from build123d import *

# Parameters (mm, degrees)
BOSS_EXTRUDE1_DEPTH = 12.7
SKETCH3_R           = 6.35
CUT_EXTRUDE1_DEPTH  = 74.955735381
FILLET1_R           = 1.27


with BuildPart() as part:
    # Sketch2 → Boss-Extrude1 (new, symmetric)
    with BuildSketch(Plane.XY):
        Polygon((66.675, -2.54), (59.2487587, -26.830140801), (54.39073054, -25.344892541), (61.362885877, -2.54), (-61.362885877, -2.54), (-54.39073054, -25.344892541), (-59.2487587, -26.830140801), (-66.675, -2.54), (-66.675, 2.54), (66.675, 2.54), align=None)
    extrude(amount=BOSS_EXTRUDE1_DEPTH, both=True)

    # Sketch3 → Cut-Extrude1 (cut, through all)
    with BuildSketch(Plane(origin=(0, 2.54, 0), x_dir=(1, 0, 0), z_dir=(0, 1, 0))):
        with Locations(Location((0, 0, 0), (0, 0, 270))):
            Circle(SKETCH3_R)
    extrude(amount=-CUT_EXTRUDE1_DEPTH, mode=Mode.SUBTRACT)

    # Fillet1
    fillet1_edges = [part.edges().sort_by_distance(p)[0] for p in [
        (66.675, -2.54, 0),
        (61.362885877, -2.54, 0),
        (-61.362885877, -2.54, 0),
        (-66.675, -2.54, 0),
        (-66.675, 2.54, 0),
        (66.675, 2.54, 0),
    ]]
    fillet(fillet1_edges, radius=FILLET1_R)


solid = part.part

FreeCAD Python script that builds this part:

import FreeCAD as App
import Part
import Sketcher

V = App.Vector
Q = App.Units.Quantity


def edges_at(feature, points):
    """Names of the edges that pass closest to the given points."""
    edges = feature.Shape.Edges
    near = lambda p: min(range(len(edges)), key=lambda i: edges[i].distToShape(Part.Vertex(*p))[0])
    return sorted({f"Edge{near(p) + 1}" for p in points})


def add_polygon(sketch, points):
    """Adds a closed chain of lines whose ends are joined by coincident constraints."""
    first, n = sketch.GeometryCount, len(points)
    for a, b in zip(points, points[1:] + points[:1]):
        sketch.addGeometry(Part.LineSegment(App.Vector(*a, 0), App.Vector(*b, 0)), False)
    for i in range(n):
        sketch.addConstraint(Sketcher.Constraint("Coincident", first + i, 2, first + (i + 1) % n, 1))

doc = App.newDocument("Part")
body = doc.addObject("PartDesign::Body", "Body")

# Sketch on XY plane
sketch1 = body.newObject("Sketcher::SketchObject", "Sketch")
sketch1.AttachmentSupport = (doc.getObject("XY_Plane"), [""])
sketch1.MapMode = "FlatFace"
add_polygon(sketch1, [(59.248759, -26.830141), (66.675, -2.54), (66.675, 2.54), (-66.675, 2.54), (-66.675, -2.54), (-59.248759, -26.830141), (-54.390731, -25.344893), (-61.362886, -2.54), (61.362886, -2.54), (54.390731, -25.344893)])  # lines 0-9
sketch1.addConstraint([
    Sketcher.Constraint("Vertical", 1),
    Sketcher.Constraint("Horizontal", 2),
    Sketcher.Constraint("Vertical", 3),
    Sketcher.Constraint("Horizontal", 7),
    Sketcher.Constraint("Symmetric", 0, 2, 2, 2, -1, 1),
    Sketcher.Constraint("Symmetric", 5, 2, 8, 2, -2),
    Sketcher.Constraint("Symmetric", 4, 2, 9, 2, -2),
    Sketcher.Constraint("Perpendicular", 4, 5),
    Sketcher.Constraint("Perpendicular", 5, 6),
    Sketcher.Constraint("Parallel", 0, 8),
    Sketcher.Constraint("Perpendicular", 8, 9),
    Sketcher.Constraint("Horizontal", 3, 2, 6, 2),
    Sketcher.Constraint("Distance", 0, Q("1 in")),
    Sketcher.Constraint("DistanceY", 1, 1, 1, 2, Q("0.2 in")),
    Sketcher.Constraint("Angle", 0, Q("73 deg")),
    Sketcher.Constraint("Distance", 5, Q("0.2 in")),
    Sketcher.Constraint("DistanceX", 2, 2, 2, 1, Q("5.25 in")),
])
pad1 = body.newObject("PartDesign::Pad", "Pad")
pad1.Profile = sketch1
pad1.Length = Q("1 in")
pad1.Midplane = True

# Sketch on XZ plane
sketch2 = body.newObject("Sketcher::SketchObject", "Sketch001")
sketch2.AttachmentSupport = (doc.getObject("XZ_Plane"), [""])
sketch2.MapMode = "FlatFace"
sketch2.AttachmentOffset = App.Placement(V(0, 0, -0.1 * 25.4), App.Rotation())
sketch2.addGeometry(Part.Circle(V(0, 0, 0), V(0, 0, 1), 6.35), False)
sketch2.addConstraint([
    Sketcher.Constraint("Coincident", 0, 3, -1, 1),
    Sketcher.Constraint("Diameter", 0, Q("0.5 in")),
])
pocket1 = body.newObject("PartDesign::Pocket", "Pocket")
pocket1.Profile = sketch2
pocket1.Type = "ThroughAll"
pocket1.Reversed = True
doc.recompute()

fillet = body.newObject("PartDesign::Fillet", "Fillet")
fillet.Base = (pocket1, edges_at(pocket1, [
    (66.675, -2.54, 0),
    (61.363, -2.54, 0),
    (-61.363, -2.54, 0),
    (-66.675, -2.54, 0),
    (-66.675, 2.54, 0),
    (66.675, 2.54, 0),
]))
fillet.Radius = Q("0.05 in")

doc.recompute()
